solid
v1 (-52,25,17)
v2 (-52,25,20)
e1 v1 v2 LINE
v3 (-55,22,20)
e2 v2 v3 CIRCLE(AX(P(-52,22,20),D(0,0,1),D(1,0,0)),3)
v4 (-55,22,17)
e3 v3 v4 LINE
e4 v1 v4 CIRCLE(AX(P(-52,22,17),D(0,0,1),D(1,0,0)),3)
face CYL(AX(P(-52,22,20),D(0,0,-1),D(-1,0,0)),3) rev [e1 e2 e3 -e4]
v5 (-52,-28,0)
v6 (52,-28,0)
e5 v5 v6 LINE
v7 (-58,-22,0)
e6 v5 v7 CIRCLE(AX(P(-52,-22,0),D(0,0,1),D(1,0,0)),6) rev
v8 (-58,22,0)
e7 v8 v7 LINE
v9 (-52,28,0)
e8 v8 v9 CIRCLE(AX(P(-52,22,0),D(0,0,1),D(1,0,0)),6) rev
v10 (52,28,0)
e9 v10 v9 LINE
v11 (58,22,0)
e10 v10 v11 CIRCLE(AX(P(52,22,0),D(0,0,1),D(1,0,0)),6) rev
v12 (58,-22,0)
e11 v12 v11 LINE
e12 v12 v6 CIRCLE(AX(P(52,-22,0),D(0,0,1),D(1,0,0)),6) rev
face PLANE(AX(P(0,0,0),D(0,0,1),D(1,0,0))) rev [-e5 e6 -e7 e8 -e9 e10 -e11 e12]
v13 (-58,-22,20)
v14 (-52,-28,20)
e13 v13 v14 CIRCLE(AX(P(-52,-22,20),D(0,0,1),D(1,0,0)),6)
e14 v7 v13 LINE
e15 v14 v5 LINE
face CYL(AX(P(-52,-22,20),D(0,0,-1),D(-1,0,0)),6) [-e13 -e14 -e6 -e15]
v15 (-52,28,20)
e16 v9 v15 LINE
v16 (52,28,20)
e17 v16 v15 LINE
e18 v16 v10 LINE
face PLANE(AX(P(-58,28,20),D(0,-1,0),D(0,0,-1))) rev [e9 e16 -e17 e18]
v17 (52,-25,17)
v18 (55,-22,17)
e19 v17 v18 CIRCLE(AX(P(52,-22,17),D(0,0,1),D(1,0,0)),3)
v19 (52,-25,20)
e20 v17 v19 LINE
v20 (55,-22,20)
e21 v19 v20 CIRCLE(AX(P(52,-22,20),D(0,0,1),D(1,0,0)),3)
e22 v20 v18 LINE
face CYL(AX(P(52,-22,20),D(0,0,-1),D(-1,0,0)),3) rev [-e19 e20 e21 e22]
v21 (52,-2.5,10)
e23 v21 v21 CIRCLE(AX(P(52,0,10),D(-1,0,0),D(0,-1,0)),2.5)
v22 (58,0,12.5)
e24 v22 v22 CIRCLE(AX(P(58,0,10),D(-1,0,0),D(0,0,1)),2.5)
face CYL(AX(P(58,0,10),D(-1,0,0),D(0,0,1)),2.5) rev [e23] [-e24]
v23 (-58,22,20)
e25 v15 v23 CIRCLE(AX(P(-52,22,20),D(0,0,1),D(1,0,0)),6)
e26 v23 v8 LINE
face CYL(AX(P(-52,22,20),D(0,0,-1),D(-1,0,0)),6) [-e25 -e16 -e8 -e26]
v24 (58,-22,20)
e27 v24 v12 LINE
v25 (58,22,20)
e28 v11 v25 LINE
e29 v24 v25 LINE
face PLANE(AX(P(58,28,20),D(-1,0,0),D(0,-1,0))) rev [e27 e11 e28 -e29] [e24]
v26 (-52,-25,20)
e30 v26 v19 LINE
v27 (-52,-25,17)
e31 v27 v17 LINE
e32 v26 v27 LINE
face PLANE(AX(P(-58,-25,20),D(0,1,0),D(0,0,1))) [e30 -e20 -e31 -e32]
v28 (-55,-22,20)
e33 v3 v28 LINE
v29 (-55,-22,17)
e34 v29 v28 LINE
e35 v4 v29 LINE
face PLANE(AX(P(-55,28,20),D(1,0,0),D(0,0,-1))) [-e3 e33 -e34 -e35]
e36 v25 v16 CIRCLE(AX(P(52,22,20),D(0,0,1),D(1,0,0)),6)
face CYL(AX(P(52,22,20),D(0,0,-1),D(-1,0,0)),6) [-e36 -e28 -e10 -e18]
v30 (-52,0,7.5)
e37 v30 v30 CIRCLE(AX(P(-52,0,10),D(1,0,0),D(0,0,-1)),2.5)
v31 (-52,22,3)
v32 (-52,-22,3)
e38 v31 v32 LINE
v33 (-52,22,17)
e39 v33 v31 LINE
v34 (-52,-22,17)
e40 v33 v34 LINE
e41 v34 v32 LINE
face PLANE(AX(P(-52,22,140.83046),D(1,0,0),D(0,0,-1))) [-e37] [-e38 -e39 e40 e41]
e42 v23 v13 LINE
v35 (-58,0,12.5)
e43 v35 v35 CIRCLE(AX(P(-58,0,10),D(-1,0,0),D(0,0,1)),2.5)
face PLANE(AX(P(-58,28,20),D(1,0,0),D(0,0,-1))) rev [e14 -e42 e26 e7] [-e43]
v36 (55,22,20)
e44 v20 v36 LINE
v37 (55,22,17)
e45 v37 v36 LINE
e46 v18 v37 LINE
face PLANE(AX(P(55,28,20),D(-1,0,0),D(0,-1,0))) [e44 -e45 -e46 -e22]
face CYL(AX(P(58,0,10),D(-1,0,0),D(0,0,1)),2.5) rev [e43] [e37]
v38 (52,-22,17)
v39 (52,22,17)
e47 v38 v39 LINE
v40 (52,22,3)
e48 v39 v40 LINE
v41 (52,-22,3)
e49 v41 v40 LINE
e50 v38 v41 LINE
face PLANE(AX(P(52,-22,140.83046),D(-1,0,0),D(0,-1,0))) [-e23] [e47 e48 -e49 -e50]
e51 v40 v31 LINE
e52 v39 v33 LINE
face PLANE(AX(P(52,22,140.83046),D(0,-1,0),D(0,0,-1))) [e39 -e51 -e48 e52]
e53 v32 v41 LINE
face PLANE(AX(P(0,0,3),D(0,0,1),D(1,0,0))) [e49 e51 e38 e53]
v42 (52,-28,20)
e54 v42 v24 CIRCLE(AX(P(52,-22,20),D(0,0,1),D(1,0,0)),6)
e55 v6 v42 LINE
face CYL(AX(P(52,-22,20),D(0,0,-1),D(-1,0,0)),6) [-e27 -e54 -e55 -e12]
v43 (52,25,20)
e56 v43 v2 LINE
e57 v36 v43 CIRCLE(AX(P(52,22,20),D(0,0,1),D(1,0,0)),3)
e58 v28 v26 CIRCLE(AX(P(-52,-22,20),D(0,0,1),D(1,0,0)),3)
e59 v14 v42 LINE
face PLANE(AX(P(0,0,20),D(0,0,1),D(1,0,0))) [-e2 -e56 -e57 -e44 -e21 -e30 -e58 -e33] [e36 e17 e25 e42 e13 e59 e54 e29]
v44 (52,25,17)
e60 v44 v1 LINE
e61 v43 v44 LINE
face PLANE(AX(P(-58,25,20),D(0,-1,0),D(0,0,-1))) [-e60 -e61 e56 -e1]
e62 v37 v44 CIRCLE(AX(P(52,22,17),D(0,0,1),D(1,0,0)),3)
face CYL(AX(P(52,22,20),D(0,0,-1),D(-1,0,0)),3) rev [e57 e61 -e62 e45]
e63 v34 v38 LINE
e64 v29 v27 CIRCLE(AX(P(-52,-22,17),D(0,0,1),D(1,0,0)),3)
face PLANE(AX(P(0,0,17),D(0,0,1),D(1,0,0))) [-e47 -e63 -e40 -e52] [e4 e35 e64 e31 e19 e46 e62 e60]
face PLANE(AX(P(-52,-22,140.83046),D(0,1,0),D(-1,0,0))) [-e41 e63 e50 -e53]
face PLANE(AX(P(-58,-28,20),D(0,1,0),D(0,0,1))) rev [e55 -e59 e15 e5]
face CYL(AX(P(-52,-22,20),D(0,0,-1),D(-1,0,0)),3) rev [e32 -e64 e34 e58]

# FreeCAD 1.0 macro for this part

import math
import FreeCAD as App
import Part
import Sketcher
from FreeCAD import Vector
Q = App.Units.Quantity


def edges_at(feature, points):
    """Names of the edges that pass closest to the given points."""
    edges = feature.Shape.Edges
    near = lambda p: min(range(len(edges)), key=lambda i: edges[i].distToShape(Part.Vertex(*p))[0])
    return sorted({f"Edge{near(p) + 1}" for p in points})


def faces_at(feature, points):
    """Names of the faces that lie closest to the given points."""
    faces = feature.Shape.Faces
    near = lambda p: min(range(len(faces)), key=lambda i: faces[i].distToShape(Part.Vertex(*p))[0])
    return sorted({f"Face{near(p) + 1}" for p in points})


def add_polygon(sketch, points):
    """Adds a closed chain of lines whose ends are joined by coincident constraints."""
    first, n = sketch.GeometryCount, len(points)
    for a, b in zip(points, points[1:] + points[:1]):
        sketch.addGeometry(Part.LineSegment(App.Vector(*a, 0), App.Vector(*b, 0)), False)
    for i in range(n):
        sketch.addConstraint(Sketcher.Constraint("Coincident", first + i, 2, first + (i + 1) % n, 1))

doc = App.newDocument("Part")
params = doc.addObject("Spreadsheet::Sheet", "Params")
for row, (alias, value) in enumerate([
    ("sketch1_width", "116 mm"),
    ("sketch1_height", "56 mm"),
    ("pad1_length", "20 mm"),
    ("fillet_radius", "6 mm"),
    ("thickness_wall", "3 mm"),
    ("sketch2_radius", "3 mm"),
    ("sketch2_width", "104 mm"),
    ("sketch2_height", "44 mm"),
    ("pad2_length", "14 mm"),
    ("sketch3_diameter", "5 mm"),
], start=1):
    params.set(f"A{row}", alias)
    params.set(f"B{row}", "=" + value)
    params.setAlias(f"B{row}", alias)

body = doc.addObject("PartDesign::Body", "Body")

sketch1 = doc.addObject("Sketcher::SketchObject", "Sketch")
body.addObject(sketch1)
sketch1.AttachmentSupport = (doc.XY_Plane, [""])
sketch1.MapMode = "FlatFace"
add_polygon(sketch1, [(-58, 28), (-58, -28), (58, -28), (58, 28)])
sketch1.addConstraint(Sketcher.Constraint("Vertical", 0))
sketch1.addConstraint(Sketcher.Constraint("Horizontal", 1))
sketch1.addConstraint(Sketcher.Constraint("Vertical", 2))
sketch1.addConstraint(Sketcher.Constraint("Horizontal", 3))
sketch1.addConstraint(Sketcher.Constraint("Symmetric", 0, 2, 2, 2, -1, 1))
sketch1.addConstraint(Sketcher.Constraint("DistanceX", 1, 1, 1, 2, Q("116 mm")))
sketch1.addConstraint(Sketcher.Constraint("DistanceY", 0, 2, 0, 1, Q("56 mm")))
sketch1.setExpression("Constraints[9]", "Params.sketch1_width")
sketch1.setExpression("Constraints[10]", "Params.sketch1_height")
pad1 = doc.addObject("PartDesign::Pad", "Pad")
body.addObject(pad1)
pad1.Profile = sketch1
pad1.setExpression("Length", "Params.pad1_length")
doc.recompute()

fillet = doc.addObject("PartDesign::Fillet", "Fillet")
body.addObject(fillet)
fillet.Base = (pad1, edges_at(pad1, [
    (58, -28, 10),
    (-58, -28, 10),
    (-58, 28, 10),
    (58, 28, 10),
]))
fillet.setExpression("Radius", "Params.fillet_radius")
doc.recompute()

thickness = doc.addObject("PartDesign::Thickness", "Thickness")
body.addObject(thickness)
thickness.Base = (fillet, faces_at(fillet, [(0, 0, 20)]))
thickness.setExpression("Value", "Params.thickness_wall")
thickness.Reversed = True
thickness.Join = "Intersection"

sketch2 = doc.addObject("Sketcher::SketchObject", "Sketch001")
body.addObject(sketch2)
sketch2.AttachmentSupport = (doc.XY_Plane, [""])
sketch2.MapMode = "FlatFace"
sketch2.AttachmentOffset = App.Placement(Vector(0, 0, 3), App.Rotation())
sketch2.addGeometry(Part.LineSegment(Vector(52, 25, 0), Vector(-52, 25, 0)), False)
sketch2.addGeometry(Part.ArcOfCircle(Part.Circle(Vector(-52, 22, 0), Vector(0, 0, 1), 3), math.radians(90), math.radians(180)), False)
sketch2.addGeometry(Part.LineSegment(Vector(-55, 22, 0), Vector(-55, -22, 0)), False)
sketch2.addGeometry(Part.ArcOfCircle(Part.Circle(Vector(-52, -22, 0), Vector(0, 0, 1), 3), math.radians(180), math.radians(270)), False)
sketch2.addGeometry(Part.LineSegment(Vector(-52, -25, 0), Vector(52, -25, 0)), False)
sketch2.addGeometry(Part.ArcOfCircle(Part.Circle(Vector(52, -22, 0), Vector(0, 0, 1), 3), math.radians(-90), math.radians(0)), False)
sketch2.addGeometry(Part.LineSegment(Vector(55, -22, 0), Vector(55, 22, 0)), False)
sketch2.addGeometry(Part.ArcOfCircle(Part.Circle(Vector(52, 22, 0), Vector(0, 0, 1), 3), math.radians(0), math.radians(90)), False)
add_polygon(sketch2, [(52, -22), (-52, -22), (-52, 22), (52, 22)])
sketch2.addConstraint(Sketcher.Constraint("Tangent", 0, 2, 1, 1))
sketch2.addConstraint(Sketcher.Constraint("Tangent", 1, 2, 2, 1))
sketch2.addConstraint(Sketcher.Constraint("Tangent", 2, 2, 3, 1))
sketch2.addConstraint(Sketcher.Constraint("Tangent", 3, 2, 4, 1))
sketch2.addConstraint(Sketcher.Constraint("Tangent", 4, 2, 5, 1))
sketch2.addConstraint(Sketcher.Constraint("Tangent", 5, 2, 6, 1))
sketch2.addConstraint(Sketcher.Constraint("Tangent", 6, 2, 7, 1))
sketch2.addConstraint(Sketcher.Constraint("Tangent", 7, 2, 0, 1))
sketch2.addConstraint(Sketcher.Constraint("Horizontal", 0))
sketch2.addConstraint(Sketcher.Constraint("Vertical", 2))
sketch2.addConstraint(Sketcher.Constraint("Horizontal", 4))
sketch2.addConstraint(Sketcher.Constraint("Vertical", 6))
sketch2.addConstraint(Sketcher.Constraint("Horizontal", 8))
sketch2.addConstraint(Sketcher.Constraint("Vertical", 9))
sketch2.addConstraint(Sketcher.Constraint("Horizontal", 10))
sketch2.addConstraint(Sketcher.Constraint("Vertical", 11))
sketch2.addConstraint(Sketcher.Constraint("Coincident", 8, 2, 3, 3))
sketch2.addConstraint(Sketcher.Constraint("Coincident", 9, 2, 1, 3))
sketch2.addConstraint(Sketcher.Constraint("Coincident", 10, 2, 7, 3))
sketch2.addConstraint(Sketcher.Constraint("Equal", 3, 5))
sketch2.addConstraint(Sketcher.Constraint("Symmetric", 1, 3, 5, 3, -1, 1))
sketch2.addConstraint(Sketcher.Constraint("Radius", 1, Q("3 mm")))
sketch2.addConstraint(Sketcher.Constraint("DistanceX", 0, 2, 0, 1, Q("104 mm")))
sketch2.addConstraint(Sketcher.Constraint("DistanceY", 2, 2, 2, 1, Q("44 mm")))
sketch2.setExpression("Constraints[25]", "Params.sketch2_radius")
sketch2.setExpression("Constraints[26]", "Params.sketch2_width")
sketch2.setExpression("Constraints[27]", "Params.sketch2_height")
pad2 = doc.addObject("PartDesign::Pad", "Pad001")
body.addObject(pad2)
pad2.Profile = sketch2
pad2.setExpression("Length", "Params.pad2_length")

sketch3 = doc.addObject("Sketcher::SketchObject", "Sketch002")
body.addObject(sketch3)
sketch3.AttachmentSupport = (doc.YZ_Plane, [""])
sketch3.MapMode = "FlatFace"
sketch3.AttachmentOffset = App.Placement(Vector(0, 0, -58), App.Rotation())
sketch3.addGeometry(Part.Circle(Vector(0, 10, 0), Vector(0, 0, 1), 2.5), False)
sketch3.addConstraint(Sketcher.Constraint("PointOnObject", 0, 3, -2))
sketch3.addConstraint(Sketcher.Constraint("Diameter", 0, Q("5 mm")))
sketch3.addConstraint(Sketcher.Constraint("DistanceY", -1, 1, 0, 3, Q("10 mm")))
sketch3.setExpression("Constraints[1]", "Params.sketch3_diameter")
pocket1 = doc.addObject("PartDesign::Pocket", "Pocket")
body.addObject(pocket1)
pocket1.Profile = sketch3
pocket1.Type = "ThroughAll"
pocket1.Reversed = True

doc.recompute()
